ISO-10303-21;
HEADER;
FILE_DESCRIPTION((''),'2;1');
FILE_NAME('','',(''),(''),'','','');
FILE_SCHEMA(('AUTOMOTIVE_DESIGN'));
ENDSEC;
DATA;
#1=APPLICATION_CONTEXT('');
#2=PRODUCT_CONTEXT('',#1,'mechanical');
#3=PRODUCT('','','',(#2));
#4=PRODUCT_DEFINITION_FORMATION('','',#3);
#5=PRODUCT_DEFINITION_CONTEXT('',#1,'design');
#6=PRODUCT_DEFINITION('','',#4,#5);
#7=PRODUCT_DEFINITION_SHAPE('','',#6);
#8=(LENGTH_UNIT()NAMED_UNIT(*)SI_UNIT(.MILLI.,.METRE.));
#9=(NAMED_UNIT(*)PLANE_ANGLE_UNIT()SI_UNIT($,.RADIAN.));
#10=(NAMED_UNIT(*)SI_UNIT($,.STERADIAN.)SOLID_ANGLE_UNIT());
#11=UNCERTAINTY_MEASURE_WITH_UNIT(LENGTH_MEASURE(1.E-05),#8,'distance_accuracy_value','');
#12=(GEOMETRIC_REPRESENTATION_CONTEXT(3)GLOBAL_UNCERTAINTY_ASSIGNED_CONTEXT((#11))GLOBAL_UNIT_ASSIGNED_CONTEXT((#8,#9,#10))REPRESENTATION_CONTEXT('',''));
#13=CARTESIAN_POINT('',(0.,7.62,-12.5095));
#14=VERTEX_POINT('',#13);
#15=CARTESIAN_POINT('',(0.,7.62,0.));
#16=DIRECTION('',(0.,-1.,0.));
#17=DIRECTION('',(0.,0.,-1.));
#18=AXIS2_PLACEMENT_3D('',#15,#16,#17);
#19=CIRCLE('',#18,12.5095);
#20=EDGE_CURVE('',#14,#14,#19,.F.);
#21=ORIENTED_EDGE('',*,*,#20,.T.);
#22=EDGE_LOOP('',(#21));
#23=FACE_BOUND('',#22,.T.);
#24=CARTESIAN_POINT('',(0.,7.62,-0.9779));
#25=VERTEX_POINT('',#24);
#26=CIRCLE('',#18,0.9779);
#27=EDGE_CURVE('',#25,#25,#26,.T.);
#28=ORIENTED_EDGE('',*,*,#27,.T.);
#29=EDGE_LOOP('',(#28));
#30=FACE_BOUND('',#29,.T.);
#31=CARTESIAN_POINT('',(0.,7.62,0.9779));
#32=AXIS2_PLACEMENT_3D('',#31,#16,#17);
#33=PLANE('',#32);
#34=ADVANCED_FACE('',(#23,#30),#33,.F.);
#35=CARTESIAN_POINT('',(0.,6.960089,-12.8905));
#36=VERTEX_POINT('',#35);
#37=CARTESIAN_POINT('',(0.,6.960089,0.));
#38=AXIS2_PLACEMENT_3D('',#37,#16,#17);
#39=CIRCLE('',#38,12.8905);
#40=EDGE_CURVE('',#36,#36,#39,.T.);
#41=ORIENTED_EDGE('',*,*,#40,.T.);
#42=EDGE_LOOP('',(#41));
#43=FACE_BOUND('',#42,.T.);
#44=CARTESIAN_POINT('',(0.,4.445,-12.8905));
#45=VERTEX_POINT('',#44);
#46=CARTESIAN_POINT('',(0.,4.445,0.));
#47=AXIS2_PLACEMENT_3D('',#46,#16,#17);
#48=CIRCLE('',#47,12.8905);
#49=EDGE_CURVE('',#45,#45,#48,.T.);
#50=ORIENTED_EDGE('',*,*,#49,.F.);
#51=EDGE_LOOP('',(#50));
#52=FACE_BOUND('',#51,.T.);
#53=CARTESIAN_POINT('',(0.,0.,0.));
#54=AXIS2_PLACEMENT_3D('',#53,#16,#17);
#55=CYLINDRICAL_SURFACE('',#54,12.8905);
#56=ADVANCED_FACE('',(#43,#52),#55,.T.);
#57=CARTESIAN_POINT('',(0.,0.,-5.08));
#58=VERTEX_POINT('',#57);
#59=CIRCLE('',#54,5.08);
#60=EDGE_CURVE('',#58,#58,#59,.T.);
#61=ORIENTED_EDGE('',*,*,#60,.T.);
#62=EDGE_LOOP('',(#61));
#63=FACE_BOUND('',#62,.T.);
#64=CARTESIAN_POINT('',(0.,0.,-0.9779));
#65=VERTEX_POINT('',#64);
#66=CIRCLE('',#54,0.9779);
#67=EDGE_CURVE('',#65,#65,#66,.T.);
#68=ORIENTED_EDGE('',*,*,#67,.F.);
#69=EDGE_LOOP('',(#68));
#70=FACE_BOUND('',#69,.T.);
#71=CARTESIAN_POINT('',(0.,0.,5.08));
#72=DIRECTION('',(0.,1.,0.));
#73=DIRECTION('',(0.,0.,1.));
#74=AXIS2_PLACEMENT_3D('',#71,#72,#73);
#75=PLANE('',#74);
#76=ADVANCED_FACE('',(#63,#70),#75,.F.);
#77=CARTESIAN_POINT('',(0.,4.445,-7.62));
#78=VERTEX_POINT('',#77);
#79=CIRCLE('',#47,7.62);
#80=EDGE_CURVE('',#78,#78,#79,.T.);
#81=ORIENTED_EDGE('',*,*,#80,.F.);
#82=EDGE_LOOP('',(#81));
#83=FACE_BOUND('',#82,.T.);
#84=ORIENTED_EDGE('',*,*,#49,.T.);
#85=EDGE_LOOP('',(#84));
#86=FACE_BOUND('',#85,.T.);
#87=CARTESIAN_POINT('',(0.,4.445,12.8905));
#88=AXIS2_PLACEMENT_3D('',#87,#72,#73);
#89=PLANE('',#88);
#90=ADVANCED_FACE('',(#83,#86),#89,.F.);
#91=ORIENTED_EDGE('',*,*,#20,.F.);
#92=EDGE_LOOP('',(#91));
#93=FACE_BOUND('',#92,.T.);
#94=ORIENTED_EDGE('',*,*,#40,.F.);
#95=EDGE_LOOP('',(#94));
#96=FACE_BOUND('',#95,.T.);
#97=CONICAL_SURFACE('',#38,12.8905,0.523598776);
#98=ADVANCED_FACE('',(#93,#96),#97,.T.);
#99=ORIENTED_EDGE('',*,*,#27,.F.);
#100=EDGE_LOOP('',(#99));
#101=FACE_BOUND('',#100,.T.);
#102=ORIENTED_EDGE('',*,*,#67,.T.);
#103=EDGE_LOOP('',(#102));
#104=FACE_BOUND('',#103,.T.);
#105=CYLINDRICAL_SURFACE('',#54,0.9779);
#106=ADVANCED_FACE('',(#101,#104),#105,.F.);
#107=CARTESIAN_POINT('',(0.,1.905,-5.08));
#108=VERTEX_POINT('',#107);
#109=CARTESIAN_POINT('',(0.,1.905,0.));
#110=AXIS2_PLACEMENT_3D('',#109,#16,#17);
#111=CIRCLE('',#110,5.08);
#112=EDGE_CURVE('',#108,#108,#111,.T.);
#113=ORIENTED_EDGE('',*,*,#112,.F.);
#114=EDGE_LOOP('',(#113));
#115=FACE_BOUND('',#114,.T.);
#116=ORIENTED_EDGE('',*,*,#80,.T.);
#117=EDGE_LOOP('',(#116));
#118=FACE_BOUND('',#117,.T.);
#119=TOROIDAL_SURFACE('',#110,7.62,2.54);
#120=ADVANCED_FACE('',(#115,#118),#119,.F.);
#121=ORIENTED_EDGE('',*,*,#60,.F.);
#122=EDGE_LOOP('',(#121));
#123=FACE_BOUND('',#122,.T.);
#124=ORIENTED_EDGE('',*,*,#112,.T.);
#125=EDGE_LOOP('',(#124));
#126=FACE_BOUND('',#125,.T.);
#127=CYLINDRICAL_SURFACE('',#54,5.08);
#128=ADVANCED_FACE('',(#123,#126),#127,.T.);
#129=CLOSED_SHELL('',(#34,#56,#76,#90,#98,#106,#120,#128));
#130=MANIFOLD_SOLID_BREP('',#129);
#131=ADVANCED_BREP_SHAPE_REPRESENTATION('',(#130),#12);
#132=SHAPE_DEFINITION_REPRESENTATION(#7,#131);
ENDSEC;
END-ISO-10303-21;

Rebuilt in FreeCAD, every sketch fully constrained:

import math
import FreeCAD as App
import Part
import Sketcher

V = App.Vector
Q = App.Units.Quantity


def edges_at(feature, points):
    """Names of the edges that pass closest to the given points."""
    edges = feature.Shape.Edges
    near = lambda p: min(range(len(edges)), key=lambda i: edges[i].distToShape(Part.Vertex(*p))[0])
    return sorted({f"Edge{near(p) + 1}" for p in points})

doc = App.newDocument("Part")
params = doc.addObject("Spreadsheet::Sheet", "Params")
for row, (alias, value) in enumerate([
    ("sketch1_radius", "0.1 in"),
    ("sketch1_width", "0.3 in"),
    ("sketch1_width2", "0.125 in"),
    ("sketch1_height", "0.469 in"),
    ("revolution_angle", "360 deg"),
    ("chamfer_size", "0.015 in"),
    ("chamfer_size2", "0.659911 mm"),
], start=1):
    params.set(f"A{row}", alias)
    params.set(f"B{row}", "=" + value)
    params.setAlias(f"B{row}", alias)

body = doc.addObject("PartDesign::Body", "Body")

sketch1 = body.newObject("Sketcher::SketchObject", "Sketch")
sketch1.AttachmentSupport = (doc.getObject("YZ_Plane"), [""])
sketch1.MapMode = "FlatFace"
sketch1.addGeometry([
    Part.LineSegment(V(0, 1, 0), V(7.6, 1, 0)),
    Part.LineSegment(V(7.6, 1, 0), V(7.6, 12.9, 0)),
    Part.LineSegment(V(7.6, 12.9, 0), V(4.4, 12.9, 0)),
    Part.LineSegment(V(4.4, 12.9, 0), V(4.4, 7.6, 0)),
    Part.ArcOfCircle(Part.Circle(V(1.9, 7.6, 0), V(0, 0, 1), 2.5), math.radians(-90), math.radians(0)),
    Part.LineSegment(V(1.9, 5.1, 0), V(0, 5.1, 0)),
    Part.LineSegment(V(0, 5.1, 0), V(0, 1, 0)),
], False)
sketch1.addConstraint([
    Sketcher.Constraint("Coincident", 0, 2, 1, 1),
    Sketcher.Constraint("Coincident", 1, 2, 2, 1),
    Sketcher.Constraint("Coincident", 2, 2, 3, 1),
    Sketcher.Constraint("Tangent", 3, 2, 4, 2),
    Sketcher.Constraint("Tangent", 4, 1, 5, 1),
    Sketcher.Constraint("Coincident", 5, 2, 6, 1),
    Sketcher.Constraint("Coincident", 6, 2, 0, 1),
    Sketcher.Constraint("Horizontal", 0),
    Sketcher.Constraint("Vertical", 1),
    Sketcher.Constraint("Horizontal", 2),
    Sketcher.Constraint("Vertical", 3),
    Sketcher.Constraint("Horizontal", 5),
    Sketcher.Constraint("Vertical", 6),
    Sketcher.Constraint("PointOnObject", 5, 2, -2),
    Sketcher.Constraint("Radius", 4, Q("0.1 in")),
    Sketcher.Constraint("DistanceX", 0, 1, 0, 2, Q("0.3 in")),
    Sketcher.Constraint("DistanceY", -1, 1, 4, 3, Q("0.3 in")),
    Sketcher.Constraint("DistanceX", 2, 2, 2, 1, Q("0.125 in")),
    Sketcher.Constraint("DistanceY", 1, 1, 1, 2, Q("0.469 in")),
    Sketcher.Constraint("DistanceY", 3, 2, 3, 1, Q("0.2075 in")),
])
sketch1.setExpression("Constraints[14]", "Params.sketch1_radius")
sketch1.setExpression("Constraints[15]", "Params.sketch1_width")
sketch1.setExpression("Constraints[17]", "Params.sketch1_width2")
sketch1.setExpression("Constraints[18]", "Params.sketch1_height")
revolution = body.newObject("PartDesign::Revolution", "Revolution")
revolution.Profile = sketch1
revolution.ReferenceAxis = (sketch1, ["H_Axis"])
revolution.setExpression("Angle", "Params.revolution_angle")
doc.recompute()

chamfer = body.newObject("PartDesign::Chamfer", "Chamfer")
chamfer.Base = (revolution, edges_at(revolution, [(0, 7.62, -12.89)]))
chamfer.ChamferType = "Two distances"
chamfer.setExpression("Size", "Params.chamfer_size")
chamfer.setExpression("Size2", "Params.chamfer_size2")

doc.recompute()
